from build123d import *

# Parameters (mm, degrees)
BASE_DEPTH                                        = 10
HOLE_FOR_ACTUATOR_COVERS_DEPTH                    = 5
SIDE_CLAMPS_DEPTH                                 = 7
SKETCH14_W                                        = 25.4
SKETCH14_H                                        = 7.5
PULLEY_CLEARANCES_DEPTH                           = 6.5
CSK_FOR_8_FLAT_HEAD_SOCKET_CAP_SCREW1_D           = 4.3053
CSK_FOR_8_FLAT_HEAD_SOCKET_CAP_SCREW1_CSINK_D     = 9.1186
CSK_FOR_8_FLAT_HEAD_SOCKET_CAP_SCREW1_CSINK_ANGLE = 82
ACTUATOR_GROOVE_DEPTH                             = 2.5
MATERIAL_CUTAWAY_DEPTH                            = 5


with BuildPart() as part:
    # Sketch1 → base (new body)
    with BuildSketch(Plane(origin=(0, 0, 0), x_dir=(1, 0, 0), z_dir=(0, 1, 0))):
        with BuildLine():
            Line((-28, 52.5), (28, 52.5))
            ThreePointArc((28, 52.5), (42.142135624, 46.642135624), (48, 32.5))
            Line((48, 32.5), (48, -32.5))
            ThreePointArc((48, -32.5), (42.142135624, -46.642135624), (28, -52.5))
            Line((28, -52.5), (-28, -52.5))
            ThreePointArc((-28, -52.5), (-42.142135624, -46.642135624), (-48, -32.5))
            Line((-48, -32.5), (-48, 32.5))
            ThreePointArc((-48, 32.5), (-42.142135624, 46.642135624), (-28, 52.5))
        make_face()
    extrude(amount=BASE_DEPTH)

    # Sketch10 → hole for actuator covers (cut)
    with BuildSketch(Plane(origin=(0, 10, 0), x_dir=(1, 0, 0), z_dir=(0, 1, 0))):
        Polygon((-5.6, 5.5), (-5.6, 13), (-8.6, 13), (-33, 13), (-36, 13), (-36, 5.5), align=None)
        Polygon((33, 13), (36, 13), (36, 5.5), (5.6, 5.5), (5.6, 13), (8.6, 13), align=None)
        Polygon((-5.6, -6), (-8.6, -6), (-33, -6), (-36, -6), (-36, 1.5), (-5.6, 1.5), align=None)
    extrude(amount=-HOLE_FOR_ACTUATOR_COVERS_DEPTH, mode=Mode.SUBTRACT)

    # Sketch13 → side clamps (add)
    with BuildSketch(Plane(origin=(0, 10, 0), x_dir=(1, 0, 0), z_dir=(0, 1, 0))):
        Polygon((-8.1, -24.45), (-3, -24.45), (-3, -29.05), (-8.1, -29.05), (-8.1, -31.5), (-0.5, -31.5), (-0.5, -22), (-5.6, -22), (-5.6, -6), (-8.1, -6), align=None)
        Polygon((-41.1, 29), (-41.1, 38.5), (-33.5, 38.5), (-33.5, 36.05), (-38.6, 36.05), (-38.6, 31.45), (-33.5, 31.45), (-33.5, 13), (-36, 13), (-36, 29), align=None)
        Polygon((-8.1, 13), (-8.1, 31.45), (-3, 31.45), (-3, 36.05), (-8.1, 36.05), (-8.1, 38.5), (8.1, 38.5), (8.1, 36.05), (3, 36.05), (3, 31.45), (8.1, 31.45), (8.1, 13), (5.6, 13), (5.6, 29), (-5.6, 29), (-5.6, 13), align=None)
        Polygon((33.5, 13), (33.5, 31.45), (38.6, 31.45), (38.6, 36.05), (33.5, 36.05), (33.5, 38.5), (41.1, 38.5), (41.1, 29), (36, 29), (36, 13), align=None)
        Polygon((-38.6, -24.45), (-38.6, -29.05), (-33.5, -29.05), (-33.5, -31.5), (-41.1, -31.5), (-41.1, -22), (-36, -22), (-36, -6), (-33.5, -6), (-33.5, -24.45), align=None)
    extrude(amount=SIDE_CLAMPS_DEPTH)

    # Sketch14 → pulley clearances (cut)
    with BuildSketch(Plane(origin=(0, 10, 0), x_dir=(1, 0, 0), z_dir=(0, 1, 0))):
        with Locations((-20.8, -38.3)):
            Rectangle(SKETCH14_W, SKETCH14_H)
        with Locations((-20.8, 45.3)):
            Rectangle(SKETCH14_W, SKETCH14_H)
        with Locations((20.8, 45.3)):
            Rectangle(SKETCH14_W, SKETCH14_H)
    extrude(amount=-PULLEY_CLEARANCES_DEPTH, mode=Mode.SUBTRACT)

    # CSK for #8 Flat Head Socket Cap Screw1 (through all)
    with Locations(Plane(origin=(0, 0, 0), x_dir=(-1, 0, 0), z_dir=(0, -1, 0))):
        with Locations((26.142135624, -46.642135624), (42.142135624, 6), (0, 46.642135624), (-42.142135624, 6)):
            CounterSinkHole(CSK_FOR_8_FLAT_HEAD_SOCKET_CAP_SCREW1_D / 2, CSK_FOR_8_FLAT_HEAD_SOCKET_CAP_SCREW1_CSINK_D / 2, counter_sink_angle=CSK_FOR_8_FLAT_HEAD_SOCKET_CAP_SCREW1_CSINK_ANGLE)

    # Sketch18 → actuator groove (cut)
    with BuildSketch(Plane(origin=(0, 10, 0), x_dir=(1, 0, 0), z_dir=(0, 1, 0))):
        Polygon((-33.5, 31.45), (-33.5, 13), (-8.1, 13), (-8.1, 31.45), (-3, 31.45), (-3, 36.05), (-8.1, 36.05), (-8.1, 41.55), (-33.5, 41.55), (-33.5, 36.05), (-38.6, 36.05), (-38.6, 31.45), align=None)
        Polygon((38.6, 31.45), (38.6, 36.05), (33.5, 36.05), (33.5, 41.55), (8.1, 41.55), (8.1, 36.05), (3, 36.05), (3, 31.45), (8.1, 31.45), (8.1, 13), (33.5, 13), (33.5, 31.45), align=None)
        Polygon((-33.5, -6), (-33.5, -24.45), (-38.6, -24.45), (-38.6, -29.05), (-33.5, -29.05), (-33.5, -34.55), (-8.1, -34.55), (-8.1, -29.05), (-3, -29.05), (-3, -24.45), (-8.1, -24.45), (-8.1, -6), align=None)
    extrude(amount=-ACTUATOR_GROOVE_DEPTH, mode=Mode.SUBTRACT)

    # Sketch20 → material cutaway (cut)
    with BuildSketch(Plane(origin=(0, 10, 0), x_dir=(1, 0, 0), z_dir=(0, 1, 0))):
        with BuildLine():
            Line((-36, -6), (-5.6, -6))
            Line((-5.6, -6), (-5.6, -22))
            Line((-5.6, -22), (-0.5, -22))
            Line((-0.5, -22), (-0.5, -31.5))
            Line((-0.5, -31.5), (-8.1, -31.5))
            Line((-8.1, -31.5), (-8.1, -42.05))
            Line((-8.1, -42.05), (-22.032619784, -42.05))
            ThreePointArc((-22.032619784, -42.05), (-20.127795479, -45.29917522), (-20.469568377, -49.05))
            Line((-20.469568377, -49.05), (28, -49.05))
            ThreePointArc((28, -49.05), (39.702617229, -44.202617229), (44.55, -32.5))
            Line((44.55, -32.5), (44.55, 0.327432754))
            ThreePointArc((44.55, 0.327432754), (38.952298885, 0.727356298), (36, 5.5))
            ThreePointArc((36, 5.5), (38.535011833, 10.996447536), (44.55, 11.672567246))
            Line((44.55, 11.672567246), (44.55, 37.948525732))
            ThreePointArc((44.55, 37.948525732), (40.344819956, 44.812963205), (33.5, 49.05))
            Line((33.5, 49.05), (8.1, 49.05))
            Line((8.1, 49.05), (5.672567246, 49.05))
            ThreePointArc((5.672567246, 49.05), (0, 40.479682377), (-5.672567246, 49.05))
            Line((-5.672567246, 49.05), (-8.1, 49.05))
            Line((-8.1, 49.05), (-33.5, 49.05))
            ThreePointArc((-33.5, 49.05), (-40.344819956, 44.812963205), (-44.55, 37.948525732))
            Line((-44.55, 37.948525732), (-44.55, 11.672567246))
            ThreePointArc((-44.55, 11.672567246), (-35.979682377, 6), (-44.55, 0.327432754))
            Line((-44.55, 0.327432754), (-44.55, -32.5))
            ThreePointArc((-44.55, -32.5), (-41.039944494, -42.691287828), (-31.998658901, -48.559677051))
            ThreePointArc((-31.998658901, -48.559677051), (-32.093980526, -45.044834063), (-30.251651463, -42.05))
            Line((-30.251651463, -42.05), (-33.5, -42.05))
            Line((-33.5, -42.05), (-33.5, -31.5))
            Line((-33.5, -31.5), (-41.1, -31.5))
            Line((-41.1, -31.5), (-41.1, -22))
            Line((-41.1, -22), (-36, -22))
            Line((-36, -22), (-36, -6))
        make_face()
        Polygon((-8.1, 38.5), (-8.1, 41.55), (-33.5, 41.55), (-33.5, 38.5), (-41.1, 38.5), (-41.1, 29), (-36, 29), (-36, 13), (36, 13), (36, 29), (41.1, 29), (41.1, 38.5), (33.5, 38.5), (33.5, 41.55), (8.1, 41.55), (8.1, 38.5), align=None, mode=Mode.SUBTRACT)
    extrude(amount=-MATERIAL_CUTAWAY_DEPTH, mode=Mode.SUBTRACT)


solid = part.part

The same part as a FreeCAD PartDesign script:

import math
import FreeCAD as App
import Part
import Sketcher

V = App.Vector
Q = App.Units.Quantity

doc = App.newDocument("Part")
params = doc.addObject("Spreadsheet::Sheet", "Params")
for row, (alias, value) in enumerate([
    ("sketch1_radius", "20 mm"),
    ("sketch1_width", "56 mm"),
    ("sketch1_height", "65 mm"),
    ("pad1_length", "10 mm"),
    ("sketch2_width", "30.4 mm"),
    ("sketch2_height", "7.5 mm"),
    ("pocket1_length", "5 mm"),
    ("sketch3_height", "16 mm"),
    ("sketch3_width", "5.1 mm"),
    ("sketch3_width2", "7.6 mm"),
    ("sketch3_width3", "11.2 mm"),
    ("sketch3_height2", "4.6 mm"),
    ("pad2_length", "7 mm"),
    ("sketch4_width", "25.4 mm"),
    ("sketch4_height", "7.5 mm"),
    ("pocket2_length", "6.5 mm"),
    ("hole_diameter", "4.3053 mm"),
    ("hole_csink_diameter", "9.1186 mm"),
    ("sketch6_width", "25.4 mm"),
    ("sketch6_width2", "5.1 mm"),
    ("sketch6_height", "4.6 mm"),
    ("sketch6_height2", "5.5 mm"),
    ("sketch6_height3", "18.45 mm"),
    ("pocket3_length", "2.5 mm"),
    ("sketch7_radius", "17.4 mm"),
    ("sketch7_width", "72 mm"),
    ("sketch7_height", "16 mm"),
    ("sketch7_radius2", "16.55 mm"),
    ("sketch7_width2", "30.4 mm"),
    ("pocket4_length", "5 mm"),
], start=1):
    params.set(f"A{row}", alias)
    params.set(f"B{row}", "=" + value)
    params.setAlias(f"B{row}", alias)

body = doc.addObject("PartDesign::Body", "Body")

# Sketch on XZ plane
sketch1 = body.newObject("Sketcher::SketchObject", "Sketch")
sketch1.AttachmentSupport = (doc.getObject("XZ_Plane"), [""])
sketch1.MapMode = "FlatFace"
sketch1.addGeometry([
    Part.LineSegment(V(28, -52.5, 0), V(-28, -52.5, 0)),  # 0
    Part.ArcOfCircle(Part.Circle(V(-28, -32.5, 0), V(0, 0, 1), 20), math.radians(180), math.radians(270)),  # 1
    Part.LineSegment(V(-48, -32.5, 0), V(-48, 32.5, 0)),  # 2
    Part.ArcOfCircle(Part.Circle(V(-28, 32.5, 0), V(0, 0, 1), 20), math.radians(90), math.radians(180)),  # 3
    Part.LineSegment(V(-28, 52.5, 0), V(28, 52.5, 0)),  # 4
    Part.ArcOfCircle(Part.Circle(V(28, 32.5, 0), V(0, 0, 1), 20), math.radians(0), math.radians(90)),  # 5
    Part.LineSegment(V(48, 32.5, 0), V(48, -32.5, 0)),  # 6
    Part.ArcOfCircle(Part.Circle(V(28, -32.5, 0), V(0, 0, 1), 20), math.radians(-90), math.radians(0)),  # 7
], False)
sketch1.addConstraint([
    Sketcher.Constraint("Tangent", 0, 2, 1, 2),
    Sketcher.Constraint("Tangent", 1, 1, 2, 1),
    Sketcher.Constraint("Tangent", 2, 2, 3, 2),
    Sketcher.Constraint("Tangent", 3, 1, 4, 1),
    Sketcher.Constraint("Tangent", 4, 2, 5, 2),
    Sketcher.Constraint("Tangent", 5, 1, 6, 1),
    Sketcher.Constraint("Tangent", 6, 2, 7, 2),
    Sketcher.Constraint("Tangent", 7, 1, 0, 1),
    Sketcher.Constraint("Horizontal", 0),
    Sketcher.Constraint("Vertical", 2),
    Sketcher.Constraint("Horizontal", 4),
    Sketcher.Constraint("Vertical", 6),
    Sketcher.Constraint("Equal", 1, 3),
    Sketcher.Constraint("Equal", 3, 5),
    Sketcher.Constraint("Equal", 5, 7),
    Sketcher.Constraint("Symmetric", 1, 3, 5, 3, -1, 1),
    Sketcher.Constraint("Radius", 1, Q("20 mm")),
    Sketcher.Constraint("DistanceX", 0, 2, 0, 1, Q("56 mm")),
    Sketcher.Constraint("DistanceY", 2, 1, 2, 2, Q("65 mm")),
])
sketch1.setExpression("Constraints[16]", "Params.sketch1_radius")
sketch1.setExpression("Constraints[17]", "Params.sketch1_width")
sketch1.setExpression("Constraints[18]", "Params.sketch1_height")
pad1 = body.newObject("PartDesign::Pad", "Pad")
pad1.Profile = sketch1
pad1.setExpression("Length", "Params.pad1_length")
pad1.Reversed = True

# Sketch on XZ plane
sketch2 = body.newObject("Sketcher::SketchObject", "Sketch001")
sketch2.AttachmentSupport = (doc.getObject("XZ_Plane"), [""])
sketch2.MapMode = "FlatFace"
sketch2.AttachmentOffset = App.Placement(V(0, 0, -10), App.Rotation())
sketch2.addGeometry([
    Part.LineSegment(V(-5.6, -5.5, 0), V(-5.6, -13, 0)),  # 0
    Part.LineSegment(V(-5.6, -13, 0), V(-36, -13, 0)),  # 1
    Part.LineSegment(V(-36, -13, 0), V(-36, -5.5, 0)),  # 2
    Part.LineSegment(V(-36, -5.5, 0), V(-5.6, -5.5, 0)),  # 3
    Part.LineSegment(V(36, -13, 0), V(5.6, -13, 0)),  # 4
    Part.LineSegment(V(5.6, -13, 0), V(5.6, -5.5, 0)),  # 5
    Part.LineSegment(V(5.6, -5.5, 0), V(36, -5.5, 0)),  # 6
    Part.LineSegment(V(36, -5.5, 0), V(36, -13, 0)),  # 7
    Part.LineSegment(V(-36, 6, 0), V(-5.6, 6, 0)),  # 8
    Part.LineSegment(V(-5.6, 6, 0), V(-5.6, -1.5, 0)),  # 9
    Part.LineSegment(V(-5.6, -1.5, 0), V(-36, -1.5, 0)),  # 10
    Part.LineSegment(V(-36, -1.5, 0), V(-36, 6, 0)),  # 11
], False)
sketch2.addConstraint([
    Sketcher.Constraint("Coincident", 0, 2, 1, 1),
    Sketcher.Constraint("Coincident", 1, 2, 2, 1),
    Sketcher.Constraint("Coincident", 2, 2, 3, 1),
    Sketcher.Constraint("Coincident", 3, 2, 0, 1),
    Sketcher.Constraint("Coincident", 4, 2, 5, 1),
    Sketcher.Constraint("Coincident", 5, 2, 6, 1),
    Sketcher.Constraint("Coincident", 6, 2, 7, 1),
    Sketcher.Constraint("Coincident", 7, 2, 4, 1),
    Sketcher.Constraint("Coincident", 8, 2, 9, 1),
    Sketcher.Constraint("Coincident", 9, 2, 10, 1),
    Sketcher.Constraint("Coincident", 10, 2, 11, 1),
    Sketcher.Constraint("Coincident", 11, 2, 8, 1),
    Sketcher.Constraint("Vertical", 0),
    Sketcher.Constraint("Horizontal", 1),
    Sketcher.Constraint("Vertical", 2),
    Sketcher.Constraint("Horizontal", 3),
    Sketcher.Constraint("Horizontal", 4),
    Sketcher.Constraint("Vertical", 5),
    Sketcher.Constraint("Horizontal", 6),
    Sketcher.Constraint("Vertical", 7),
    Sketcher.Constraint("Horizontal", 8),
    Sketcher.Constraint("Vertical", 9),
    Sketcher.Constraint("Horizontal", 10),
    Sketcher.Constraint("Vertical", 11),
    Sketcher.Constraint("Symmetric", 0, 2, 4, 2, -2),
    Sketcher.Constraint("Symmetric", 2, 2, 6, 2, -2),
    Sketcher.Constraint("Vertical", 3, 2, 8, 2),
    Sketcher.Constraint("Vertical", 2, 2, 10, 2),
    Sketcher.Constraint("Equal", 7, 9),
    Sketcher.Constraint("DistanceX", 1, 2, 1, 1, Q("30.4 mm")),
    Sketcher.Constraint("DistanceY", 0, 2, 0, 1, Q("7.5 mm")),
    Sketcher.Constraint("DistanceY", 0, 2, -1, 1, Q("13 mm")),
    Sketcher.Constraint("DistanceX", 1, 2, -1, 1, Q("36 mm")),
    Sketcher.Constraint("DistanceY", -1, 1, 8, 2, Q("6 mm")),
])
sketch2.setExpression("Constraints[29]", "Params.sketch2_width")
sketch2.setExpression("Constraints[30]", "Params.sketch2_height")
pocket1 = body.newObject("PartDesign::Pocket", "Pocket")
pocket1.Profile = sketch2
pocket1.setExpression("Length", "Params.pocket1_length")
pocket1.Reversed = True

# Sketch on XZ plane
sketch3 = body.newObject("Sketcher::SketchObject", "Sketch002")
sketch3.AttachmentSupport = (doc.getObject("XZ_Plane"), [""])
sketch3.MapMode = "FlatFace"
sketch3.AttachmentOffset = App.Placement(V(0, 0, -10), App.Rotation())
sketch3.addGeometry([
    Part.LineSegment(V(-8.1, 24.45, 0), V(-3, 24.45, 0)),  # 0
    Part.LineSegment(V(-3, 24.45, 0), V(-3, 29.05, 0)),  # 1
    Part.LineSegment(V(-3, 29.05, 0), V(-8.1, 29.05, 0)),  # 2
    Part.LineSegment(V(-8.1, 29.05, 0), V(-8.1, 31.5, 0)),  # 3
    Part.LineSegment(V(-8.1, 31.5, 0), V(-0.5, 31.5, 0)),  # 4
    Part.LineSegment(V(-0.5, 31.5, 0), V(-0.5, 22, 0)),  # 5
    Part.LineSegment(V(-0.5, 22, 0), V(-5.6, 22, 0)),  # 6
    Part.LineSegment(V(-5.6, 22, 0), V(-5.6, 6, 0)),  # 7
    Part.LineSegment(V(-5.6, 6, 0), V(-8.1, 6, 0)),  # 8
    Part.LineSegment(V(-8.1, 6, 0), V(-8.1, 24.45, 0)),  # 9
    Part.LineSegment(V(-41.1, -38.5, 0), V(-41.1, -29, 0)),  # 10
    Part.LineSegment(V(-41.1, -29, 0), V(-36, -29, 0)),  # 11
    Part.LineSegment(V(-36, -29, 0), V(-36, -13, 0)),  # 12
    Part.LineSegment(V(-36, -13, 0), V(-33.5, -13, 0)),  # 13
    Part.LineSegment(V(-33.5, -13, 0), V(-33.5, -31.45, 0)),  # 14
    Part.LineSegment(V(-33.5, -31.45, 0), V(-38.6, -31.45, 0)),  # 15
    Part.LineSegment(V(-38.6, -31.45, 0), V(-38.6, -36.05, 0)),  # 16
    Part.LineSegment(V(-38.6, -36.05, 0), V(-33.5, -36.05, 0)),  # 17
    Part.LineSegment(V(-33.5, -36.05, 0), V(-33.5, -38.5, 0)),  # 18
    Part.LineSegment(V(-33.5, -38.5, 0), V(-41.1, -38.5, 0)),  # 19
    Part.LineSegment(V(-8.1, -31.45, 0), V(-8.1, -13, 0)),  # 20
    Part.LineSegment(V(-8.1, -13, 0), V(-5.6, -13, 0)),  # 21
    Part.LineSegment(V(-5.6, -13, 0), V(-5.6, -29, 0)),  # 22
    Part.LineSegment(V(-5.6, -29, 0), V(5.6, -29, 0)),  # 23
    Part.LineSegment(V(5.6, -29, 0), V(5.6, -13, 0)),  # 24
    Part.LineSegment(V(5.6, -13, 0), V(8.1, -13, 0)),  # 25
    Part.LineSegment(V(8.1, -13, 0), V(8.1, -31.45, 0)),  # 26
    Part.LineSegment(V(8.1, -31.45, 0), V(3, -31.45, 0)),  # 27
    Part.LineSegment(V(3, -31.45, 0), V(3, -36.05, 0)),  # 28
    Part.LineSegment(V(3, -36.05, 0), V(8.1, -36.05, 0)),  # 29
    Part.LineSegment(V(8.1, -36.05, 0), V(8.1, -38.5, 0)),  # 30
    Part.LineSegment(V(8.1, -38.5, 0), V(-8.1, -38.5, 0)),  # 31
    Part.LineSegment(V(-8.1, -38.5, 0), V(-8.1, -36.05, 0)),  # 32
    Part.LineSegment(V(-8.1, -36.05, 0), V(-3, -36.05, 0)),  # 33
    Part.LineSegment(V(-3, -36.05, 0), V(-3, -31.45, 0)),  # 34
    Part.LineSegment(V(-3, -31.45, 0), V(-8.1, -31.45, 0)),  # 35
    Part.LineSegment(V(33.5, -31.45, 0), V(33.5, -13, 0)),  # 36
    Part.LineSegment(V(33.5, -13, 0), V(36, -13, 0)),  # 37
    Part.LineSegment(V(36, -13, 0), V(36, -29, 0)),  # 38
    Part.LineSegment(V(36, -29, 0), V(41.1, -29, 0)),  # 39
    Part.LineSegment(V(41.1, -29, 0), V(41.1, -38.5, 0)),  # 40
    Part.LineSegment(V(41.1, -38.5, 0), V(33.5, -38.5, 0)),  # 41
    Part.LineSegment(V(33.5, -38.5, 0), V(33.5, -36.05, 0)),  # 42
    Part.LineSegment(V(33.5, -36.05, 0), V(38.6, -36.05, 0)),  # 43
    Part.LineSegment(V(38.6, -36.05, 0), V(38.6, -31.45, 0)),  # 44
    Part.LineSegment(V(38.6, -31.45, 0), V(33.5, -31.45, 0)),  # 45
    Part.LineSegment(V(-38.6, 29.05, 0), V(-38.6, 24.45, 0)),  # 46
    Part.LineSegment(V(-38.6, 24.45, 0), V(-33.5, 24.45, 0)),  # 47
    Part.LineSegment(V(-33.5, 24.45, 0), V(-33.5, 6, 0)),  # 48
    Part.LineSegment(V(-33.5, 6, 0), V(-36, 6, 0)),  # 49
    Part.LineSegment(V(-36, 6, 0), V(-36, 22, 0)),  # 50
    Part.LineSegment(V(-36, 22, 0), V(-41.1, 22, 0)),  # 51
    Part.LineSegment(V(-41.1, 22, 0), V(-41.1, 31.5, 0)),  # 52
    Part.LineSegment(V(-41.1, 31.5, 0), V(-33.5, 31.5, 0)),  # 53
    Part.LineSegment(V(-33.5, 31.5, 0), V(-33.5, 29.05, 0)),  # 54
    Part.LineSegment(V(-33.5, 29.05, 0), V(-38.6, 29.05, 0)),  # 55
], False)
sketch3.addConstraint([
    Sketcher.Constraint("Coincident", 0, 2, 1, 1),
    Sketcher.Constraint("Coincident", 1, 2, 2, 1),
    Sketcher.Constraint("Coincident", 2, 2, 3, 1),
    Sketcher.Constraint("Coincident", 3, 2, 4, 1),
    Sketcher.Constraint("Coincident", 4, 2, 5, 1),
    Sketcher.Constraint("Coincident", 5, 2, 6, 1),
    Sketcher.Constraint("Coincident", 6, 2, 7, 1),
    Sketcher.Constraint("Coincident", 7, 2, 8, 1),
    Sketcher.Constraint("Coincident", 8, 2, 9, 1),
    Sketcher.Constraint("Coincident", 9, 2, 0, 1),
    Sketcher.Constraint("Coincident", 10, 2, 11, 1),
    Sketcher.Constraint("Coincident", 11, 2, 12, 1),
    Sketcher.Constraint("Coincident", 12, 2, 13, 1),
    Sketcher.Constraint("Coincident", 13, 2, 14, 1),
    Sketcher.Constraint("Coincident", 14, 2, 15, 1),
    Sketcher.Constraint("Coincident", 15, 2, 16, 1),
    Sketcher.Constraint("Coincident", 16, 2, 17, 1),
    Sketcher.Constraint("Coincident", 17, 2, 18, 1),
    Sketcher.Constraint("Coincident", 18, 2, 19, 1),
    Sketcher.Constraint("Coincident", 19, 2, 10, 1),
    Sketcher.Constraint("Coincident", 20, 2, 21, 1),
    Sketcher.Constraint("Coincident", 21, 2, 22, 1),
    Sketcher.Constraint("Coincident", 22, 2, 23, 1),
    Sketcher.Constraint("Coincident", 23, 2, 24, 1),
    Sketcher.Constraint("Coincident", 24, 2, 25, 1),
    Sketcher.Constraint("Coincident", 25, 2, 26, 1),
    Sketcher.Constraint("Coincident", 26, 2, 27, 1),
    Sketcher.Constraint("Coincident", 27, 2, 28, 1),
    Sketcher.Constraint("Coincident", 28, 2, 29, 1),
    Sketcher.Constraint("Coincident", 29, 2, 30, 1),
    Sketcher.Constraint("Coincident", 30, 2, 31, 1),
    Sketcher.Constraint("Coincident", 31, 2, 32, 1),
    Sketcher.Constraint("Coincident", 32, 2, 33, 1),
    Sketcher.Constraint("Coincident", 33, 2, 34, 1),
    Sketcher.Constraint("Coincident", 34, 2, 35, 1),
    Sketcher.Constraint("Coincident", 35, 2, 20, 1),
    Sketcher.Constraint("Coincident", 36, 2, 37, 1),
    Sketcher.Constraint("Coincident", 37, 2, 38, 1),
    Sketcher.Constraint("Coincident", 38, 2, 39, 1),
    Sketcher.Constraint("Coincident", 39, 2, 40, 1),
    Sketcher.Constraint("Coincident", 40, 2, 41, 1),
    Sketcher.Constraint("Coincident", 41, 2, 42, 1),
    Sketcher.Constraint("Coincident", 42, 2, 43, 1),
    Sketcher.Constraint("Coincident", 43, 2, 44, 1),
    Sketcher.Constraint("Coincident", 44, 2, 45, 1),
    Sketcher.Constraint("Coincident", 45, 2, 36, 1),
    Sketcher.Constraint("Coincident", 46, 2, 47, 1),
    Sketcher.Constraint("Coincident", 47, 2, 48, 1),
    Sketcher.Constraint("Coincident", 48, 2, 49, 1),
    Sketcher.Constraint("Coincident", 49, 2, 50, 1),
    Sketcher.Constraint("Coincident", 50, 2, 51, 1),
    Sketcher.Constraint("Coincident", 51, 2, 52, 1),
    Sketcher.Constraint("Coincident", 52, 2, 53, 1),
    Sketcher.Constraint("Coincident", 53, 2, 54, 1),
    Sketcher.Constraint("Coincident", 54, 2, 55, 1),
    Sketcher.Constraint("Coincident", 55, 2, 46, 1),
    Sketcher.Constraint("Horizontal", 0),
    Sketcher.Constraint("Vertical", 1),
    Sketcher.Constraint("Horizontal", 2),
    Sketcher.Constraint("Vertical", 3),
    Sketcher.Constraint("Horizontal", 4),
    Sketcher.Constraint("Vertical", 5),
    Sketcher.Constraint("Horizontal", 6),
    Sketcher.Constraint("Vertical", 7),
    Sketcher.Constraint("Horizontal", 8),
    Sketcher.Constraint("Vertical", 9),
    Sketcher.Constraint("Vertical", 10),
    Sketcher.Constraint("Horizontal", 11),
    Sketcher.Constraint("Vertical", 12),
    Sketcher.Constraint("Horizontal", 13),
    Sketcher.Constraint("Vertical", 14),
    Sketcher.Constraint("Horizontal", 15),
    Sketcher.Constraint("Vertical", 16),
    Sketcher.Constraint("Horizontal", 17),
    Sketcher.Constraint("Vertical", 18),
    Sketcher.Constraint("Horizontal", 19),
    Sketcher.Constraint("Vertical", 20),
    Sketcher.Constraint("Horizontal", 21),
    Sketcher.Constraint("Vertical", 22),
    Sketcher.Constraint("Horizontal", 23),
    Sketcher.Constraint("Vertical", 24),
    Sketcher.Constraint("Horizontal", 25),
    Sketcher.Constraint("Vertical", 26),
    Sketcher.Constraint("Horizontal", 27),
    Sketcher.Constraint("Vertical", 28),
    Sketcher.Constraint("Horizontal", 29),
    Sketcher.Constraint("Vertical", 30),
    Sketcher.Constraint("Horizontal", 31),
    Sketcher.Constraint("Vertical", 32),
    Sketcher.Constraint("Horizontal", 33),
    Sketcher.Constraint("Vertical", 34),
    Sketcher.Constraint("Horizontal", 35),
    Sketcher.Constraint("Vertical", 36),
    Sketcher.Constraint("Horizontal", 37),
    Sketcher.Constraint("Vertical", 38),
    Sketcher.Constraint("Horizontal", 39),
    Sketcher.Constraint("Vertical", 40),
    Sketcher.Constraint("Horizontal", 41),
    Sketcher.Constraint("Vertical", 42),
    Sketcher.Constraint("Horizontal", 43),
    Sketcher.Constraint("Vertical", 44),
    Sketcher.Constraint("Horizontal", 45),
    Sketcher.Constraint("Vertical", 46),
    Sketcher.Constraint("Horizontal", 47),
    Sketcher.Constraint("Vertical", 48),
    Sketcher.Constraint("Horizontal", 49),
    Sketcher.Constraint("Vertical", 50),
    Sketcher.Constraint("Horizontal", 51),
    Sketcher.Constraint("Vertical", 52),
    Sketcher.Constraint("Horizontal", 53),
    Sketcher.Constraint("Vertical", 54),
    Sketcher.Constraint("Horizontal", 55),
    Sketcher.Constraint("Symmetric", 21, 2, 24, 2, -2),
    Sketcher.Constraint("Symmetric", 29, 2, 32, 2, -2),
    Sketcher.Constraint("Symmetric", 27, 2, 34, 2, -2),
    Sketcher.Constraint("Symmetric", 13, 2, 36, 2, -2),
    Sketcher.Constraint("Symmetric", 11, 2, 38, 2, -2),
    Sketcher.Constraint("Symmetric", 19, 2, 40, 2, -2),
    Sketcher.Constraint("Symmetric", 17, 2, 42, 2, -2),
    Sketcher.Constraint("Symmetric", 15, 2, 44, 2, -2),
    Sketcher.Constraint("Horizontal", 13, 2, 20, 2),
    Sketcher.Constraint("Horizontal", 11, 2, 22, 2),
    Sketcher.Constraint("Horizontal", 15, 2, 26, 2),
    Sketcher.Constraint("Horizontal", 17, 2, 28, 2),
    Sketcher.Constraint("Horizontal", 19, 2, 30, 2),
    Sketcher.Constraint("Horizontal", 9, 2, 46, 2),
    Sketcher.Constraint("Horizontal", 8, 2, 48, 2),
    Sketcher.Constraint("Horizontal", 6, 2, 50, 2),
    Sketcher.Constraint("Horizontal", 4, 2, 52, 2),
    Sketcher.Constraint("Horizontal", 2, 2, 54, 2),
    Sketcher.Constraint("Vertical", 3, 2, 8, 2),
    Sketcher.Constraint("Vertical", 14, 2, 17, 2),
    Sketcher.Constraint("Vertical", 9, 2, 20, 2),
    Sketcher.Constraint("Vertical", 7, 2, 21, 2),
    Sketcher.Constraint("Vertical", 26, 2, 29, 2),
    Sketcher.Constraint("Vertical", 20, 2, 31, 2),
    Sketcher.Constraint("Vertical", 1, 2, 33, 2),
    Sketcher.Constraint("Vertical", 16, 2, 46, 2),
    Sketcher.Constraint("Vertical", 18, 2, 47, 2),
    Sketcher.Constraint("Vertical", 12, 2, 49, 2),
    Sketcher.Constraint("Vertical", 19, 2, 51, 2),
    Sketcher.Constraint("Vertical", 48, 2, 53, 2),
    Sketcher.Constraint("Equal", 2, 6),
    Sketcher.Constraint("Equal", 6, 11),
    Sketcher.Constraint("Equal", 8, 13),
    Sketcher.Constraint("Equal", 11, 15),
    Sketcher.Constraint("Equal", 5, 10),
    Sketcher.Constraint("Equal", 7, 12),
    Sketcher.Constraint("Equal", 9, 14),
    Sketcher.Constraint("Equal", 1, 16),
    Sketcher.Constraint("DistanceY", 7, 2, 7, 1, Q("16 mm")),
    Sketcher.Constraint("DistanceX", 0, 1, 0, 2, Q("5.1 mm")),
    Sketcher.Constraint("DistanceX", 4, 1, 4, 2, Q("7.6 mm")),
    Sketcher.Constraint("DistanceX", 23, 1, 23, 2, Q("11.2 mm")),
    Sketcher.Constraint("DistanceY", 1, 1, 1, 2, Q("4.6 mm")),
    Sketcher.Constraint("DistanceY", 5, 2, 5, 1, Q("9.5 mm")),
    Sketcher.Constraint("DistanceY", -1, 1, 5, 2, Q("22 mm")),
    Sketcher.Constraint("DistanceY", 10, 2, -1, 1, Q("29 mm")),
    Sketcher.Constraint("DistanceX", 11, 2, -1, 1, Q("36 mm")),
    Sketcher.Constraint("DistanceY", 3, 1, 3, 2, Q("2.45 mm")),
])
sketch3.setExpression("Constraints[150]", "Params.sketch3_height")
sketch3.setExpression("Constraints[151]", "Params.sketch3_width")
sketch3.setExpression("Constraints[152]", "Params.sketch3_width2")
sketch3.setExpression("Constraints[153]", "Params.sketch3_width3")
sketch3.setExpression("Constraints[154]", "Params.sketch3_height2")
pad2 = body.newObject("PartDesign::Pad", "Pad001")
pad2.Profile = sketch3
pad2.setExpression("Length", "Params.pad2_length")
pad2.Reversed = True

# Sketch on XZ plane
sketch4 = body.newObject("Sketcher::SketchObject", "Sketch003")
sketch4.AttachmentSupport = (doc.getObject("XZ_Plane"), [""])
sketch4.MapMode = "FlatFace"
sketch4.AttachmentOffset = App.Placement(V(0, 0, -10), App.Rotation())
sketch4.addGeometry([
    Part.LineSegment(V(-33.5, 34.55, 0), V(-33.5, 42.05, 0)),  # 0
    Part.LineSegment(V(-33.5, 42.05, 0), V(-8.1, 42.05, 0)),  # 1
    Part.LineSegment(V(-8.1, 42.05, 0), V(-8.1, 34.55, 0)),  # 2
    Part.LineSegment(V(-8.1, 34.55, 0), V(-33.5, 34.55, 0)),  # 3
    Part.LineSegment(V(-33.5, -49.05, 0), V(-33.5, -41.55, 0)),  # 4
    Part.LineSegment(V(-33.5, -41.55, 0), V(-8.1, -41.55, 0)),  # 5
    Part.LineSegment(V(-8.1, -41.55, 0), V(-8.1, -49.05, 0)),  # 6
    Part.LineSegment(V(-8.1, -49.05, 0), V(-33.5, -49.05, 0)),  # 7
    Part.LineSegment(V(8.1, -49.05, 0), V(8.1, -41.55, 0)),  # 8
    Part.LineSegment(V(8.1, -41.55, 0), V(33.5, -41.55, 0)),  # 9
    Part.LineSegment(V(33.5, -41.55, 0), V(33.5, -49.05, 0)),  # 10
    Part.LineSegment(V(33.5, -49.05, 0), V(8.1, -49.05, 0)),  # 11
], False)
sketch4.addConstraint([
    Sketcher.Constraint("Coincident", 0, 2, 1, 1),
    Sketcher.Constraint("Coincident", 1, 2, 2, 1),
    Sketcher.Constraint("Coincident", 2, 2, 3, 1),
    Sketcher.Constraint("Coincident", 3, 2, 0, 1),
    Sketcher.Constraint("Coincident", 4, 2, 5, 1),
    Sketcher.Constraint("Coincident", 5, 2, 6, 1),
    Sketcher.Constraint("Coincident", 6, 2, 7, 1),
    Sketcher.Constraint("Coincident", 7, 2, 4, 1),
    Sketcher.Constraint("Coincident", 8, 2, 9, 1),
    Sketcher.Constraint("Coincident", 9, 2, 10, 1),
    Sketcher.Constraint("Coincident", 10, 2, 11, 1),
    Sketcher.Constraint("Coincident", 11, 2, 8, 1),
    Sketcher.Constraint("Vertical", 0),
    Sketcher.Constraint("Horizontal", 1),
    Sketcher.Constraint("Vertical", 2),
    Sketcher.Constraint("Horizontal", 3),
    Sketcher.Constraint("Vertical", 4),
    Sketcher.Constraint("Horizontal", 5),
    Sketcher.Constraint("Vertical", 6),
    Sketcher.Constraint("Horizontal", 7),
    Sketcher.Constraint("Vertical", 8),
    Sketcher.Constraint("Horizontal", 9),
    Sketcher.Constraint("Vertical", 10),
    Sketcher.Constraint("Horizontal", 11),
    Sketcher.Constraint("Symmetric", 5, 2, 8, 2, -2),
    Sketcher.Constraint("Symmetric", 7, 2, 10, 2, -2),
    Sketcher.Constraint("Vertical", 3, 2, 4, 2),
    Sketcher.Constraint("Vertical", 2, 2, 5, 2),
    Sketcher.Constraint("Equal", 2, 4),
    Sketcher.Constraint("DistanceX", 1, 1, 1, 2, Q("25.4 mm")),
    Sketcher.Constraint("DistanceY", 0, 1, 0, 2, Q("7.5 mm")),
    Sketcher.Constraint("DistanceX", 4, 2, 9, 2, Q("67 mm")),
    Sketcher.Constraint("DistanceY", 4, 2, 3, 2, Q("76.1 mm")),
    Sketcher.Constraint("DistanceY", -1, 1, 0, 2, Q("42.05 mm")),
])
sketch4.setExpression("Constraints[29]", "Params.sketch4_width")
sketch4.setExpression("Constraints[30]", "Params.sketch4_height")
pocket2 = body.newObject("PartDesign::Pocket", "Pocket001")
pocket2.Profile = sketch4
pocket2.setExpression("Length", "Params.pocket2_length")
pocket2.Reversed = True

# Sketch on XZ plane
sketch5 = body.newObject("Sketcher::SketchObject", "Sketch004")
sketch5.AttachmentSupport = (doc.getObject("XZ_Plane"), [""])
sketch5.MapMode = "FlatFace"
sketch5.addGeometry([
    Part.Circle(V(-26.142136, 46.642136, 0), V(0, 0, 1), 2.15265),
    Part.Circle(V(-42.142136, -6, 0), V(0, 0, 1), 2.15265),
    Part.Circle(V(0, -46.642136, 0), V(0, 0, 1), 2.15265),
    Part.Circle(V(42.142136, -6, 0), V(0, 0, 1), 2.15265),
], False)
sketch5.addConstraint([
    Sketcher.Constraint("Equal", 0, 1),
    Sketcher.Constraint("Equal", 1, 2),
    Sketcher.Constraint("Equal", 2, 3),
    Sketcher.Constraint("Symmetric", 1, 3, 3, 3, -2),
    Sketcher.Constraint("PointOnObject", 2, 3, -2),
    Sketcher.Constraint("DistanceY", 1, 3, -1, 1, Q("6 mm")),
    Sketcher.Constraint("DistanceX", 1, 3, 0, 3, Q("16 mm")),
    Sketcher.Constraint("Diameter", 0, Q("4.3053 mm")),
    Sketcher.Constraint("DistanceY", 2, 3, 0, 3, Q("93.284271 mm")),
    Sketcher.Constraint("DistanceX", 1, 3, 3, 3, Q("84.284271 mm")),
    Sketcher.Constraint("DistanceY", -1, 1, 0, 3, Q("46.642136 mm")),
])
doc.recompute()
hole = body.newObject("PartDesign::Hole", "Hole")
hole.Profile = sketch5
hole.ThreadType = "None"
hole.setExpression("Diameter", "Params.hole_diameter")
hole.DepthType = "ThroughAll"
hole.HoleCutType = "Countersink"
hole.setExpression("HoleCutDiameter", "Params.hole_csink_diameter")
hole.HoleCutCountersinkAngle = 82

# Sketch on XZ plane
sketch6 = body.newObject("Sketcher::SketchObject", "Sketch005")
sketch6.AttachmentSupport = (doc.getObject("XZ_Plane"), [""])
sketch6.MapMode = "FlatFace"
sketch6.AttachmentOffset = App.Placement(V(0, 0, -10), App.Rotation())
sketch6.addGeometry([
    Part.LineSegment(V(-33.5, -31.45, 0), V(-33.5, -13, 0)),  # 0
    Part.LineSegment(V(-33.5, -13, 0), V(-8.1, -13, 0)),  # 1
    Part.LineSegment(V(-8.1, -13, 0), V(-8.1, -31.45, 0)),  # 2
    Part.LineSegment(V(-8.1, -31.45, 0), V(-3, -31.45, 0)),  # 3
    Part.LineSegment(V(-3, -31.45, 0), V(-3, -36.05, 0)),  # 4
    Part.LineSegment(V(-3, -36.05, 0), V(-8.1, -36.05, 0)),  # 5
    Part.LineSegment(V(-8.1, -36.05, 0), V(-8.1, -41.55, 0)),  # 6
    Part.LineSegment(V(-8.1, -41.55, 0), V(-33.5, -41.55, 0)),  # 7
    Part.LineSegment(V(-33.5, -41.55, 0), V(-33.5, -36.05, 0)),  # 8
    Part.LineSegment(V(-33.5, -36.05, 0), V(-38.6, -36.05, 0)),  # 9
    Part.LineSegment(V(-38.6, -36.05, 0), V(-38.6, -31.45, 0)),  # 10
    Part.LineSegment(V(-38.6, -31.45, 0), V(-33.5, -31.45, 0)),  # 11
    Part.LineSegment(V(38.6, -31.45, 0), V(38.6, -36.05, 0)),  # 12
    Part.LineSegment(V(38.6, -36.05, 0), V(33.5, -36.05, 0)),  # 13
    Part.LineSegment(V(33.5, -36.05, 0), V(33.5, -41.55, 0)),  # 14
    Part.LineSegment(V(33.5, -41.55, 0), V(8.1, -41.55, 0)),  # 15
    Part.LineSegment(V(8.1, -41.55, 0), V(8.1, -36.05, 0)),  # 16
    Part.LineSegment(V(8.1, -36.05, 0), V(3, -36.05, 0)),  # 17
    Part.LineSegment(V(3, -36.05, 0), V(3, -31.45, 0)),  # 18
    Part.LineSegment(V(3, -31.45, 0), V(8.1, -31.45, 0)),  # 19
    Part.LineSegment(V(8.1, -31.45, 0), V(8.1, -13, 0)),  # 20
    Part.LineSegment(V(8.1, -13, 0), V(33.5, -13, 0)),  # 21
    Part.LineSegment(V(33.5, -13, 0), V(33.5, -31.45, 0)),  # 22
    Part.LineSegment(V(33.5, -31.45, 0), V(38.6, -31.45, 0)),  # 23
    Part.LineSegment(V(-33.5, 6, 0), V(-33.5, 24.45, 0)),  # 24
    Part.LineSegment(V(-33.5, 24.45, 0), V(-38.6, 24.45, 0)),  # 25
    Part.LineSegment(V(-38.6, 24.45, 0), V(-38.6, 29.05, 0)),  # 26
    Part.LineSegment(V(-38.6, 29.05, 0), V(-33.5, 29.05, 0)),  # 27
    Part.LineSegment(V(-33.5, 29.05, 0), V(-33.5, 34.55, 0)),  # 28
    Part.LineSegment(V(-33.5, 34.55, 0), V(-8.1, 34.55, 0)),  # 29
    Part.LineSegment(V(-8.1, 34.55, 0), V(-8.1, 29.05, 0)),  # 30
    Part.LineSegment(V(-8.1, 29.05, 0), V(-3, 29.05, 0)),  # 31
    Part.LineSegment(V(-3, 29.05, 0), V(-3, 24.45, 0)),  # 32
    Part.LineSegment(V(-3, 24.45, 0), V(-8.1, 24.45, 0)),  # 33
    Part.LineSegment(V(-8.1, 24.45, 0), V(-8.1, 6, 0)),  # 34
    Part.LineSegment(V(-8.1, 6, 0), V(-33.5, 6, 0)),  # 35
], False)
sketch6.addConstraint([
    Sketcher.Constraint("Coincident", 0, 2, 1, 1),
    Sketcher.Constraint("Coincident", 1, 2, 2, 1),
    Sketcher.Constraint("Coincident", 2, 2, 3, 1),
    Sketcher.Constraint("Coincident", 3, 2, 4, 1),
    Sketcher.Constraint("Coincident", 4, 2, 5, 1),
    Sketcher.Constraint("Coincident", 5, 2, 6, 1),
    Sketcher.Constraint("Coincident", 6, 2, 7, 1),
    Sketcher.Constraint("Coincident", 7, 2, 8, 1),
    Sketcher.Constraint("Coincident", 8, 2, 9, 1),
    Sketcher.Constraint("Coincident", 9, 2, 10, 1),
    Sketcher.Constraint("Coincident", 10, 2, 11, 1),
    Sketcher.Constraint("Coincident", 11, 2, 0, 1),
    Sketcher.Constraint("Coincident", 12, 2, 13, 1),
    Sketcher.Constraint("Coincident", 13, 2, 14, 1),
    Sketcher.Constraint("Coincident", 14, 2, 15, 1),
    Sketcher.Constraint("Coincident", 15, 2, 16, 1),
    Sketcher.Constraint("Coincident", 16, 2, 17, 1),
    Sketcher.Constraint("Coincident", 17, 2, 18, 1),
    Sketcher.Constraint("Coincident", 18, 2, 19, 1),
    Sketcher.Constraint("Coincident", 19, 2, 20, 1),
    Sketcher.Constraint("Coincident", 20, 2, 21, 1),
    Sketcher.Constraint("Coincident", 21, 2, 22, 1),
    Sketcher.Constraint("Coincident", 22, 2, 23, 1),
    Sketcher.Constraint("Coincident", 23, 2, 12, 1),
    Sketcher.Constraint("Coincident", 24, 2, 25, 1),
    Sketcher.Constraint("Coincident", 25, 2, 26, 1),
    Sketcher.Constraint("Coincident", 26, 2, 27, 1),
    Sketcher.Constraint("Coincident", 27, 2, 28, 1),
    Sketcher.Constraint("Coincident", 28, 2, 29, 1),
    Sketcher.Constraint("Coincident", 29, 2, 30, 1),
    Sketcher.Constraint("Coincident", 30, 2, 31, 1),
    Sketcher.Constraint("Coincident", 31, 2, 32, 1),
    Sketcher.Constraint("Coincident", 32, 2, 33, 1),
    Sketcher.Constraint("Coincident", 33, 2, 34, 1),
    Sketcher.Constraint("Coincident", 34, 2, 35, 1),
    Sketcher.Constraint("Coincident", 35, 2, 24, 1),
    Sketcher.Constraint("Vertical", 0),
    Sketcher.Constraint("Horizontal", 1),
    Sketcher.Constraint("Vertical", 2),
    Sketcher.Constraint("Horizontal", 3),
    Sketcher.Constraint("Vertical", 4),
    Sketcher.Constraint("Horizontal", 5),
    Sketcher.Constraint("Vertical", 6),
    Sketcher.Constraint("Horizontal", 7),
    Sketcher.Constraint("Vertical", 8),
    Sketcher.Constraint("Horizontal", 9),
    Sketcher.Constraint("Vertical", 10),
    Sketcher.Constraint("Horizontal", 11),
    Sketcher.Constraint("Vertical", 12),
    Sketcher.Constraint("Horizontal", 13),
    Sketcher.Constraint("Vertical", 14),
    Sketcher.Constraint("Horizontal", 15),
    Sketcher.Constraint("Vertical", 16),
    Sketcher.Constraint("Horizontal", 17),
    Sketcher.Constraint("Vertical", 18),
    Sketcher.Constraint("Horizontal", 19),
    Sketcher.Constraint("Vertical", 20),
    Sketcher.Constraint("Horizontal", 21),
    Sketcher.Constraint("Vertical", 22),
    Sketcher.Constraint("Horizontal", 23),
    Sketcher.Constraint("Vertical", 24),
    Sketcher.Constraint("Horizontal", 25),
    Sketcher.Constraint("Vertical", 26),
    Sketcher.Constraint("Horizontal", 27),
    Sketcher.Constraint("Vertical", 28),
    Sketcher.Constraint("Horizontal", 29),
    Sketcher.Constraint("Vertical", 30),
    Sketcher.Constraint("Horizontal", 31),
    Sketcher.Constraint("Vertical", 32),
    Sketcher.Constraint("Horizontal", 33),
    Sketcher.Constraint("Vertical", 34),
    Sketcher.Constraint("Horizontal", 35),
    Sketcher.Constraint("Symmetric", 9, 2, 12, 2, -2),
    Sketcher.Constraint("Symmetric", 7, 2, 14, 2, -2),
    Sketcher.Constraint("Symmetric", 5, 2, 16, 2, -2),
    Sketcher.Constraint("Symmetric", 3, 2, 18, 2, -2),
    Sketcher.Constraint("Symmetric", 1, 2, 20, 2, -2),
    Sketcher.Constraint("Symmetric", 11, 2, 22, 2, -2),
    Sketcher.Constraint("Horizontal", 5, 2, 8, 2),
    Sketcher.Constraint("Horizontal", 3, 2, 10, 2),
    Sketcher.Constraint("Horizontal", 27, 2, 30, 2),
    Sketcher.Constraint("Horizontal", 25, 2, 32, 2),
    Sketcher.Constraint("Vertical", 2, 2, 5, 2),
    Sketcher.Constraint("Vertical", 0, 2, 7, 2),
    Sketcher.Constraint("Vertical", 11, 2, 24, 2),
    Sketcher.Constraint("Vertical", 10, 2, 25, 2),
    Sketcher.Constraint("Vertical", 24, 2, 27, 2),
    Sketcher.Constraint("Vertical", 6, 2, 29, 2),
    Sketcher.Constraint("Vertical", 4, 2, 31, 2),
    Sketcher.Constraint("Vertical", 30, 2, 33, 2),
    Sketcher.Constraint("Equal", 5, 9),
    Sketcher.Constraint("Equal", 22, 24),
    Sketcher.Constraint("Equal", 18, 26),
    Sketcher.Constraint("Equal", 16, 28),
    Sketcher.Constraint("DistanceX", 1, 1, 1, 2, Q("25.4 mm")),
    Sketcher.Constraint("DistanceX", 3, 1, 3, 2, Q("5.1 mm")),
    Sketcher.Constraint("DistanceY", 4, 2, 4, 1, Q("4.6 mm")),
    Sketcher.Constraint("DistanceY", 6, 2, 6, 1, Q("5.5 mm")),
    Sketcher.Constraint("DistanceY", 0, 2, -1, 1, Q("13 mm")),
    Sketcher.Constraint("DistanceX", 3, 2, -1, 1, Q("3 mm")),
    Sketcher.Constraint("DistanceY", -1, 1, 34, 2, Q("6 mm")),
    Sketcher.Constraint("DistanceY", 0, 1, 0, 2, Q("18.45 mm")),
])
sketch6.setExpression("Constraints[94]", "Params.sketch6_width")
sketch6.setExpression("Constraints[95]", "Params.sketch6_width2")
sketch6.setExpression("Constraints[96]", "Params.sketch6_height")
sketch6.setExpression("Constraints[97]", "Params.sketch6_height2")
sketch6.setExpression("Constraints[101]", "Params.sketch6_height3")
pocket3 = body.newObject("PartDesign::Pocket", "Pocket002")
pocket3.Profile = sketch6
pocket3.setExpression("Length", "Params.pocket3_length")
pocket3.Reversed = True

# Sketch on XZ plane
sketch7 = body.newObject("Sketcher::SketchObject", "Sketch006")
sketch7.AttachmentSupport = (doc.getObject("XZ_Plane"), [""])
sketch7.MapMode = "FlatFace"
sketch7.AttachmentOffset = App.Placement(V(0, 0, -10), App.Rotation())
sketch7.addGeometry([
    Part.LineSegment(V(-36, 6, 0), V(-5.6, 6, 0)),  # 0
    Part.LineSegment(V(-5.6, 6, 0), V(-5.6, 22, 0)),  # 1
    Part.LineSegment(V(-5.6, 22, 0), V(-0.5, 22, 0)),  # 2
    Part.LineSegment(V(-0.5, 22, 0), V(-0.5, 31.5, 0)),  # 3
    Part.LineSegment(V(-0.5, 31.5, 0), V(-8.1, 31.5, 0)),  # 4
    Part.LineSegment(V(-8.1, 31.5, 0), V(-8.1, 42.05, 0)),  # 5
    Part.LineSegment(V(-8.1, 42.05, 0), V(-22.03262, 42.05, 0)),  # 6
    Part.ArcOfCircle(Part.Circle(V(-26.142136, 46.642136, 0), V(0, 0, 1), 6.162453), math.radians(-48.174544), math.radians(23.000021)),  # 7
    Part.LineSegment(V(-20.469568, 49.05, 0), V(28, 49.05, 0)),  # 8
    Part.ArcOfCircle(Part.Circle(V(28, 32.5, 0), V(0, 0, 1), 16.55), math.radians(0), math.radians(90)),  # 9
    Part.LineSegment(V(44.55, 32.5, 0), V(44.55, -0.327433, 0)),  # 10
    Part.ArcOfCircle(Part.Circle(V(42.142136, -6, 0), V(0, 0, 1), 6.162453), math.radians(66.999979), math.radians(175.346104)),  # 11
    Part.ArcOfCircle(Part.Circle(V(42.142136, -6, 0), V(0, 0, 1), 6.162453), math.radians(175.346104), math.radians(293.000021)),  # 12
    Part.LineSegment(V(44.55, -11.672567, 0), V(44.55, -37.948526, 0)),  # 13
    Part.ArcOfCircle(Part.Circle(V(28.012605, -32.537929, 0), V(0, 0, 1), 17.4), math.radians(-71.616997), math.radians(-18.116723)),  # 14
    Part.LineSegment(V(33.5, -49.05, 0), V(5.672567, -49.05, 0)),  # 15
    Part.ArcOfCircle(Part.Circle(V(0, -46.642136, 0), V(0, 0, 1), 6.162453), math.radians(-23.000021), math.radians(203.000021)),  # 16
    Part.LineSegment(V(-5.672567, -49.05, 0), V(-33.5, -49.05, 0)),  # 17
    Part.ArcOfCircle(Part.Circle(V(-28.012605, -32.537929, 0), V(0, 0, 1), 17.4), math.radians(-161.883277), math.radians(-108.383003)),  # 18
    Part.LineSegment(V(-44.55, -37.948526, 0), V(-44.55, -11.672567, 0)),  # 19
    Part.ArcOfCircle(Part.Circle(V(-42.142136, -6, 0), V(0, 0, 1), 6.162453), math.radians(-113.000021), math.radians(113.000021)),  # 20
    Part.LineSegment(V(-44.55, -0.327433, 0), V(-44.55, 32.5, 0)),  # 21
    Part.ArcOfCircle(Part.Circle(V(-28, 32.5, 0), V(0, 0, 1), 16.55), math.radians(103.981631), math.radians(180)),  # 22
    Part.ArcOfCircle(Part.Circle(V(-26.142136, 46.642136, 0), V(0, 0, 1), 6.162453), math.radians(161.870531), math.radians(228.174544)),  # 23
    Part.LineSegment(V(-30.251651, 42.05, 0), V(-33.5, 42.05, 0)),  # 24
    Part.LineSegment(V(-33.5, 42.05, 0), V(-33.5, 31.5, 0)),  # 25
    Part.LineSegment(V(-33.5, 31.5, 0), V(-41.1, 31.5, 0)),  # 26
    Part.LineSegment(V(-41.1, 31.5, 0), V(-41.1, 22, 0)),  # 27
    Part.LineSegment(V(-41.1, 22, 0), V(-36, 22, 0)),  # 28
    Part.LineSegment(V(-36, 22, 0), V(-36, 6, 0)),  # 29
    Part.LineSegment(V(-8.1, -41.55, 0), V(-8.1, -38.5, 0)),  # 30
    Part.LineSegment(V(-8.1, -38.5, 0), V(8.1, -38.5, 0)),  # 31
    Part.LineSegment(V(8.1, -38.5, 0), V(8.1, -41.55, 0)),  # 32
    Part.LineSegment(V(8.1, -41.55, 0), V(33.5, -41.55, 0)),  # 33
    Part.LineSegment(V(33.5, -41.55, 0), V(33.5, -38.5, 0)),  # 34
    Part.LineSegment(V(33.5, -38.5, 0), V(41.1, -38.5, 0)),  # 35
    Part.LineSegment(V(41.1, -38.5, 0), V(41.1, -29, 0)),  # 36
    Part.LineSegment(V(41.1, -29, 0), V(36, -29, 0)),  # 37
    Part.LineSegment(V(36, -29, 0), V(36, -13, 0)),  # 38
    Part.LineSegment(V(36, -13, 0), V(-36, -13, 0)),  # 39
    Part.LineSegment(V(-36, -13, 0), V(-36, -29, 0)),  # 40
    Part.LineSegment(V(-36, -29, 0), V(-41.1, -29, 0)),  # 41
    Part.LineSegment(V(-41.1, -29, 0), V(-41.1, -38.5, 0)),  # 42
    Part.LineSegment(V(-41.1, -38.5, 0), V(-33.5, -38.5, 0)),  # 43
    Part.LineSegment(V(-33.5, -38.5, 0), V(-33.5, -41.55, 0)),  # 44
    Part.LineSegment(V(-33.5, -41.55, 0), V(-8.1, -41.55, 0)),  # 45
], False)
sketch7.addConstraint([
    Sketcher.Constraint("Coincident", 0, 2, 1, 1),
    Sketcher.Constraint("Coincident", 1, 2, 2, 1),
    Sketcher.Constraint("Coincident", 2, 2, 3, 1),
    Sketcher.Constraint("Coincident", 3, 2, 4, 1),
    Sketcher.Constraint("Coincident", 4, 2, 5, 1),
    Sketcher.Constraint("Coincident", 5, 2, 6, 1),
    Sketcher.Constraint("Coincident", 6, 2, 7, 1),
    Sketcher.Constraint("Coincident", 7, 2, 8, 1),
    Sketcher.Constraint("Tangent", 8, 2, 9, 2),
    Sketcher.Constraint("Tangent", 9, 1, 10, 1),
    Sketcher.Constraint("Coincident", 10, 2, 11, 1),
    Sketcher.Constraint("Tangent", 11, 2, 12, 1),
    Sketcher.Constraint("Coincident", 12, 2, 13, 1),
    Sketcher.Constraint("Coincident", 13, 2, 14, 2),
    Sketcher.Constraint("Coincident", 14, 1, 15, 1),
    Sketcher.Constraint("Coincident", 15, 2, 16, 1),
    Sketcher.Constraint("Coincident", 16, 2, 17, 1),
    Sketcher.Constraint("Coincident", 17, 2, 18, 2),
    Sketcher.Constraint("Coincident", 18, 1, 19, 1),
    Sketcher.Constraint("Coincident", 19, 2, 20, 1),
    Sketcher.Constraint("Coincident", 20, 2, 21, 1),
    Sketcher.Constraint("Tangent", 21, 2, 22, 2),
    Sketcher.Constraint("Coincident", 22, 1, 23, 1),
    Sketcher.Constraint("Coincident", 23, 2, 24, 1),
    Sketcher.Constraint("Coincident", 24, 2, 25, 1),
    Sketcher.Constraint("Coincident", 25, 2, 26, 1),
    Sketcher.Constraint("Coincident", 26, 2, 27, 1),
    Sketcher.Constraint("Coincident", 27, 2, 28, 1),
    Sketcher.Constraint("Coincident", 28, 2, 29, 1),
    Sketcher.Constraint("Coincident", 29, 2, 0, 1),
    Sketcher.Constraint("Coincident", 30, 2, 31, 1),
    Sketcher.Constraint("Coincident", 31, 2, 32, 1),
    Sketcher.Constraint("Coincident", 32, 2, 33, 1),
    Sketcher.Constraint("Coincident", 33, 2, 34, 1),
    Sketcher.Constraint("Coincident", 34, 2, 35, 1),
    Sketcher.Constraint("Coincident", 35, 2, 36, 1),
    Sketcher.Constraint("Coincident", 36, 2, 37, 1),
    Sketcher.Constraint("Coincident", 37, 2, 38, 1),
    Sketcher.Constraint("Coincident", 38, 2, 39, 1),
    Sketcher.Constraint("Coincident", 39, 2, 40, 1),
    Sketcher.Constraint("Coincident", 40, 2, 41, 1),
    Sketcher.Constraint("Coincident", 41, 2, 42, 1),
    Sketcher.Constraint("Coincident", 42, 2, 43, 1),
    Sketcher.Constraint("Coincident", 43, 2, 44, 1),
    Sketcher.Constraint("Coincident", 44, 2, 45, 1),
    Sketcher.Constraint("Coincident", 45, 2, 30, 1),
    Sketcher.Constraint("Horizontal", 0),
    Sketcher.Constraint("Vertical", 1),
    Sketcher.Constraint("Horizontal", 2),
    Sketcher.Constraint("Vertical", 3),
    Sketcher.Constraint("Horizontal", 4),
    Sketcher.Constraint("Vertical", 5),
    Sketcher.Constraint("Horizontal", 6),
    Sketcher.Constraint("Horizontal", 8),
    Sketcher.Constraint("Vertical", 10),
    Sketcher.Constraint("Vertical", 13),
    Sketcher.Constraint("Horizontal", 15),
    Sketcher.Constraint("Horizontal", 17),
    Sketcher.Constraint("Vertical", 19),
    Sketcher.Constraint("Vertical", 21),
    Sketcher.Constraint("Horizontal", 24),
    Sketcher.Constraint("Vertical", 25),
    Sketcher.Constraint("Horizontal", 26),
    Sketcher.Constraint("Vertical", 27),
    Sketcher.Constraint("Horizontal", 28),
    Sketcher.Constraint("Vertical", 29),
    Sketcher.Constraint("Vertical", 30),
    Sketcher.Constraint("Horizontal", 31),
    Sketcher.Constraint("Vertical", 32),
    Sketcher.Constraint("Horizontal", 33),
    Sketcher.Constraint("Vertical", 34),
    Sketcher.Constraint("Horizontal", 35),
    Sketcher.Constraint("Vertical", 36),
    Sketcher.Constraint("Horizontal", 37),
    Sketcher.Constraint("Vertical", 38),
    Sketcher.Constraint("Horizontal", 39),
    Sketcher.Constraint("Vertical", 40),
    Sketcher.Constraint("Horizontal", 41),
    Sketcher.Constraint("Vertical", 42),
    Sketcher.Constraint("Horizontal", 43),
    Sketcher.Constraint("Vertical", 44),
    Sketcher.Constraint("Horizontal", 45),
    Sketcher.Constraint("Coincident", 23, 3, 7, 3),
    Sketcher.Constraint("Equal", 7, 11),
    Sketcher.Constraint("Equal", 11, 12),
    Sketcher.Constraint("Equal", 12, 16),
    Sketcher.Constraint("Equal", 14, 18),
    Sketcher.Constraint("Equal", 16, 20),
    Sketcher.Constraint("Equal", 9, 22),
    Sketcher.Constraint("Equal", 20, 23),
    Sketcher.Constraint("Symmetric", 14, 3, 18, 3, -2),
    Sketcher.Constraint("Symmetric", 11, 3, 20, 3, -2),
    Sketcher.Constraint("Symmetric", 9, 3, 22, 3, -2),
    Sketcher.Constraint("Symmetric", 15, 2, 16, 2, -2),
    Sketcher.Constraint("Symmetric", 37, 2, 40, 2, -2),
    Sketcher.Constraint("Symmetric", 35, 2, 42, 2, -2),
    Sketcher.Constraint("Symmetric", 33, 2, 44, 2, -2),
    Sketcher.Constraint("Horizontal", 13, 2, 18, 1),
    Sketcher.Constraint("Horizontal", 6, 2, 23, 2),
    Sketcher.Constraint("Horizontal", 4, 2, 25, 2),
    Sketcher.Constraint("Horizontal", 2, 2, 27, 2),
    Sketcher.Constraint("Horizontal", 31, 2, 34, 2),
    Sketcher.Constraint("Vertical", 10, 2, 12, 2),
    Sketcher.Constraint("Vertical", 17, 2, 24, 2),
    Sketcher.Constraint("Vertical", 5, 2, 30, 2),
    Sketcher.Constraint("Vertical", 14, 1, 33, 2),
    Sketcher.Constraint("Vertical", 11, 2, 37, 2),
    Sketcher.Constraint("Vertical", 29, 2, 39, 2),
    Sketcher.Constraint("Vertical", 27, 2, 41, 2),
    Sketcher.Constraint("Equal", 4, 26),
    Sketcher.Constraint("Equal", 2, 28),
    Sketcher.Constraint("Equal", 33, 45),
    Sketcher.Constraint("Equal", 27, 36),
    Sketcher.Constraint("Equal", 29, 38),
    Sketcher.Constraint("Radius", 14, Q("17.4 mm")),
    Sketcher.Constraint("DistanceX", 39, 2, 39, 1, Q("72 mm")),
    Sketcher.Constraint("DistanceY", 1, 1, 1, 2, Q("16 mm")),
    Sketcher.Constraint("Radius", 9, Q("16.55 mm")),
    Sketcher.Constraint("DistanceX", 0, 1, 0, 2, Q("30.4 mm")),
    Sketcher.Constraint("DistanceX", 2, 1, 2, 2, Q("5.1 mm")),
    Sketcher.Constraint("DistanceX", 4, 2, 4, 1, Q("7.6 mm")),
    Sketcher.Constraint("DistanceY", 3, 1, 3, 2, Q("9.5 mm")),
    Sketcher.Constraint("DistanceX", -1, 1, 9, 3, Q("28 mm")),
    Sketcher.Constraint("DistanceY", 11, 3, -1, 1, Q("6 mm")),
    Sketcher.Constraint("DistanceY", -1, 1, 0, 2, Q("6 mm")),
    Sketcher.Constraint("DistanceY", 36, 2, -1, 1, Q("29 mm")),
    Sketcher.Constraint("DistanceX", 20, 3, 7, 3, Q("16 mm")),
    Sketcher.Constraint("DistanceY", 3, 2, 22, 3, Q("1 mm")),
    Sketcher.Constraint("DistanceY", 6, 2, 7, 2, Q("7 mm")),
    Sketcher.Constraint("DistanceY", 11, 2, 9, 3, Q("38 mm")),
    Sketcher.Constraint("DistanceY", 30, 1, 30, 2, Q("3.05 mm")),
    Sketcher.Constraint("DistanceY", 15, 2, 32, 2, Q("7.5 mm")),
    Sketcher.Constraint("Radius", 7, Q("6.162453 mm")),
    Sketcher.Constraint("DistanceX", 6, 2, 6, 1, Q("13.93262 mm")),
    Sketcher.Constraint("DistanceY", 13, 2, 13, 1, Q("26.275958 mm")),
    Sketcher.Constraint("DistanceX", 15, 2, 15, 1, Q("27.827433 mm")),
])
sketch7.setExpression("Constraints[114]", "Params.sketch7_radius")
sketch7.setExpression("Constraints[115]", "Params.sketch7_width")
sketch7.setExpression("Constraints[116]", "Params.sketch7_height")
sketch7.setExpression("Constraints[117]", "Params.sketch7_radius2")
sketch7.setExpression("Constraints[118]", "Params.sketch7_width2")
pocket4 = body.newObject("PartDesign::Pocket", "Pocket003")
pocket4.Profile = sketch7
pocket4.setExpression("Length", "Params.pocket4_length")
pocket4.Reversed = True

doc.recompute()
